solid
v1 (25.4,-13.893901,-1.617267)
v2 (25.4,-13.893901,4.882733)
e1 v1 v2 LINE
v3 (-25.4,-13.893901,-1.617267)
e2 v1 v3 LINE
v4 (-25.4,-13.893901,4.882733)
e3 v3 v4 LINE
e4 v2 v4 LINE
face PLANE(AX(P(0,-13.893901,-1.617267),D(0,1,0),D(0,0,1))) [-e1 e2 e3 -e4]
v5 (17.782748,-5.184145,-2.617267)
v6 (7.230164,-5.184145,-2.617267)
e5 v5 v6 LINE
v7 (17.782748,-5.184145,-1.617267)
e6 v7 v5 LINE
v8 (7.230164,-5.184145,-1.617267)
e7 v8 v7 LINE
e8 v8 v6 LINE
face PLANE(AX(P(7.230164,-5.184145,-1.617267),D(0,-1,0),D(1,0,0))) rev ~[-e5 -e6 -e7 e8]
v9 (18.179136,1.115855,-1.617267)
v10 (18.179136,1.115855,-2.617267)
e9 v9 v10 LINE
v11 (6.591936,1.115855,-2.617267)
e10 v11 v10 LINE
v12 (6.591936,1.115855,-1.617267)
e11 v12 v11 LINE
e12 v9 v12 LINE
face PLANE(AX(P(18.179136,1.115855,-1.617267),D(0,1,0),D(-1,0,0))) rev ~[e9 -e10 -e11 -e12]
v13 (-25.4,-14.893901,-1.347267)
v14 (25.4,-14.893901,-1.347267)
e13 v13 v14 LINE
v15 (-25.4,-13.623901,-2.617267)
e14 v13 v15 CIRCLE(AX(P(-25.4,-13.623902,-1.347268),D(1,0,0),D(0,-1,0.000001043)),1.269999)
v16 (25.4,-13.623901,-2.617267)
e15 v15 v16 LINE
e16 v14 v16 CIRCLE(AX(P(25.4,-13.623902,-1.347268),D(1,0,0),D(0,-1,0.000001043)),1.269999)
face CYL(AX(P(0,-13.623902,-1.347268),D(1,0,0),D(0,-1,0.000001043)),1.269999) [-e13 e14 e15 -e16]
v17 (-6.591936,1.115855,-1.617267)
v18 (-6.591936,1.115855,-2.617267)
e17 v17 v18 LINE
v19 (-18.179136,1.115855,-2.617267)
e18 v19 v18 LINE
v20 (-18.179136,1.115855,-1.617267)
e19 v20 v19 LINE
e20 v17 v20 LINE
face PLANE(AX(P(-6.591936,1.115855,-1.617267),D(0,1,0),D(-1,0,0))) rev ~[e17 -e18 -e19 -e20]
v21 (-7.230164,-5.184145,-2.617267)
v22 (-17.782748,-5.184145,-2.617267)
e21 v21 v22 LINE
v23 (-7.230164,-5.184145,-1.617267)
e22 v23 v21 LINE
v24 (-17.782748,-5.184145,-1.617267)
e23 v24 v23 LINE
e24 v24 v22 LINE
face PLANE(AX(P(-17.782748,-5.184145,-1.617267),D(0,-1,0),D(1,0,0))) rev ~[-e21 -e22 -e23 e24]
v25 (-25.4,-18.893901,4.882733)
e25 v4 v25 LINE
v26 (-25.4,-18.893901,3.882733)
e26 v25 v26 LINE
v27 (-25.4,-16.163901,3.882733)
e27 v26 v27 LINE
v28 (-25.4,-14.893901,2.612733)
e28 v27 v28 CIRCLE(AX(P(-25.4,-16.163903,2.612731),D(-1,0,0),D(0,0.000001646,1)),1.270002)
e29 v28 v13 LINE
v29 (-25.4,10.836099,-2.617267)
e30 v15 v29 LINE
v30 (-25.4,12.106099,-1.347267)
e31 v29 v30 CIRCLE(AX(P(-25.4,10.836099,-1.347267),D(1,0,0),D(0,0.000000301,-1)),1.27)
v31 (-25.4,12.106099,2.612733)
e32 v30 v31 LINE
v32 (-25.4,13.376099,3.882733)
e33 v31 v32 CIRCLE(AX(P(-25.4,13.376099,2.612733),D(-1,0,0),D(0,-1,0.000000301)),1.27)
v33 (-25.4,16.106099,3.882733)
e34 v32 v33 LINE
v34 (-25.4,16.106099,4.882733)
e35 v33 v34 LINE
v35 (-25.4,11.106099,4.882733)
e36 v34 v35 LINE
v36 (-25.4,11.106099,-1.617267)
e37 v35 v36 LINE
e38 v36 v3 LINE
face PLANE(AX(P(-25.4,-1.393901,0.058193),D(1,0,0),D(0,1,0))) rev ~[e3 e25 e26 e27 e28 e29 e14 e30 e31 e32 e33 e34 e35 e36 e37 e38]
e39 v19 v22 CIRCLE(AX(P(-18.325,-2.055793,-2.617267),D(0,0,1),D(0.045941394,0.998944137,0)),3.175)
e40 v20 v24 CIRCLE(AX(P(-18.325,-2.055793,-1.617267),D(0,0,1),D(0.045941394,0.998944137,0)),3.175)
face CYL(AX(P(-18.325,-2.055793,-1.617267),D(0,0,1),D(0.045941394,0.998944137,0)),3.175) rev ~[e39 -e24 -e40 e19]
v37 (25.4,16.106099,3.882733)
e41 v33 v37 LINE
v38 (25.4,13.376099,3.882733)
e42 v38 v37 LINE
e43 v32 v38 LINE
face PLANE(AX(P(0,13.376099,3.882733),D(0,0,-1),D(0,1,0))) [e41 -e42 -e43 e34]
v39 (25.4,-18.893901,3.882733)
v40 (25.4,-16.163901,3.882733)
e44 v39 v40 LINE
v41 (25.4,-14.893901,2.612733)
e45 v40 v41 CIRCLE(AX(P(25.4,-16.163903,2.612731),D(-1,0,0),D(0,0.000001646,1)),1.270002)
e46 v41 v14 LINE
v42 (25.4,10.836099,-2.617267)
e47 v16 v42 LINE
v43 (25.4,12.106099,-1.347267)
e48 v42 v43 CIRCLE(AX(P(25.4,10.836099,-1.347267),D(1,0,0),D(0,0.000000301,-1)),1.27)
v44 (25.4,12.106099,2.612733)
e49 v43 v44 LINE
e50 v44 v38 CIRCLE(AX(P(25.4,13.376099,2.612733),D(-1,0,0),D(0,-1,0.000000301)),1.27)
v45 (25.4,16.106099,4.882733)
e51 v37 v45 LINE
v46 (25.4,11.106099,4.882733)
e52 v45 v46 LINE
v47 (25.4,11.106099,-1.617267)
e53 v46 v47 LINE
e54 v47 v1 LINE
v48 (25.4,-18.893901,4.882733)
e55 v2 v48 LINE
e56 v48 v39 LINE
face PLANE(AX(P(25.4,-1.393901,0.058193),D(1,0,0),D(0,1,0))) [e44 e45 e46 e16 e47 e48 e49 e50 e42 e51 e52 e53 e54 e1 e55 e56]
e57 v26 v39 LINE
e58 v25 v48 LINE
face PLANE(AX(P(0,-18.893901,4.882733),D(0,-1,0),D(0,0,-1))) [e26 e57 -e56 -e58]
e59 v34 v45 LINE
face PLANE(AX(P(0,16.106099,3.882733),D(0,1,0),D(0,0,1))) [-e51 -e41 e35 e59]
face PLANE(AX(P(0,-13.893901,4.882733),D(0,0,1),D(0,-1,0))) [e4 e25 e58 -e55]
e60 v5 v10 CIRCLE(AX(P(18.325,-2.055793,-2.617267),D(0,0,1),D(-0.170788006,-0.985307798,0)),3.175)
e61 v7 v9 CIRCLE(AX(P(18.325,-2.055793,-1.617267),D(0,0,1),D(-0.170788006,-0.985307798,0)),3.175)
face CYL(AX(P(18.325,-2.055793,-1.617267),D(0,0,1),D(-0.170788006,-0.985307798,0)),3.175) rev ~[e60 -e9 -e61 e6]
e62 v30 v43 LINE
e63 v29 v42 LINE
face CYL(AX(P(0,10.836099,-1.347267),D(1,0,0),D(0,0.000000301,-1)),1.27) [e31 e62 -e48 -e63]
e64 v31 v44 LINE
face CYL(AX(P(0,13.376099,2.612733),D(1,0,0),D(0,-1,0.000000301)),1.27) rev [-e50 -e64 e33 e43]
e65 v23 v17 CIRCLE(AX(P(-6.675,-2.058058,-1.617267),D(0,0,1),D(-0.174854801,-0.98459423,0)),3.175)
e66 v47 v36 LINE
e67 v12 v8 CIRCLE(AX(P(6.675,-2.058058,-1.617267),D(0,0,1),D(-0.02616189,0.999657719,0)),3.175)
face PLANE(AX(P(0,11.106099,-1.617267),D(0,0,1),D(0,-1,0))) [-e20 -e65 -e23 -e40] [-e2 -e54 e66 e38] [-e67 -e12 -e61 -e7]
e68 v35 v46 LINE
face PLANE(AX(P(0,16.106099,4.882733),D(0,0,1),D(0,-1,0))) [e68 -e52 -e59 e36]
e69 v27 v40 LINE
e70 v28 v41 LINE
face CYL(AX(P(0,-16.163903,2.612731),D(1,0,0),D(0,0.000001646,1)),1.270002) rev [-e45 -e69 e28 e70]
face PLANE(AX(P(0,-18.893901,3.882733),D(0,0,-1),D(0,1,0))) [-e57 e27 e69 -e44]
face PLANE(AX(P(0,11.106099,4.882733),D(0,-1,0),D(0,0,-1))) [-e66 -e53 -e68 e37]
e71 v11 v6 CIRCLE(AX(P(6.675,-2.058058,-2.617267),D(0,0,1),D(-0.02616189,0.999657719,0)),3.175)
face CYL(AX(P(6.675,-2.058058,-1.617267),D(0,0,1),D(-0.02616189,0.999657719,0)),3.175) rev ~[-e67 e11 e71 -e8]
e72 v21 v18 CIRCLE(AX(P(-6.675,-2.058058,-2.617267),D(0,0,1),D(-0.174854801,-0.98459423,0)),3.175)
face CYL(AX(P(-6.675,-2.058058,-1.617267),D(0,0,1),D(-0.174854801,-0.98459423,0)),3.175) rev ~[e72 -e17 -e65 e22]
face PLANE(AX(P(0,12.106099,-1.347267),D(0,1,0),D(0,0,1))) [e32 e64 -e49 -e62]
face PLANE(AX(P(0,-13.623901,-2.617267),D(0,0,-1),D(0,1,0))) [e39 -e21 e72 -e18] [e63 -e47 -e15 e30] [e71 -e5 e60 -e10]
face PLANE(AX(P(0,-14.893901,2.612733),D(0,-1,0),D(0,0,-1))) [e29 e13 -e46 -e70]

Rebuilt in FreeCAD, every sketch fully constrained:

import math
import FreeCAD as App
import Part
import Sketcher
from FreeCAD import Vector
Q = App.Units.Quantity

doc = App.newDocument("Part")
body = doc.addObject("PartDesign::Body", "Body")

# Sketch on YZ plane
sketch1 = body.newObject("Sketcher::SketchObject", "Sketch")
sketch1.AttachmentSupport = (doc.getObject("YZ_Plane"), [""])
sketch1.MapMode = "FlatFace"
sketch1.addGeometry(Part.LineSegment(Vector(-13.9, 4.9, 0), Vector(-18.9, 4.9, 0)), False)
sketch1.addGeometry(Part.LineSegment(Vector(-18.9, 4.9, 0), Vector(-18.9, 3.9, 0)), False)
sketch1.addGeometry(Part.LineSegment(Vector(-18.9, 3.9, 0), Vector(-16.2, 3.9, 0)), False)
sketch1.addGeometry(Part.ArcOfCircle(Part.Circle(Vector(-16.2, 2.6, 0), Vector(0, 0, 1), 1.3), math.radians(0), math.radians(90)), False)
sketch1.addGeometry(Part.LineSegment(Vector(-14.9, 2.6, 0), Vector(-14.9, -1.3, 0)), False)
sketch1.addGeometry(Part.ArcOfCircle(Part.Circle(Vector(-13.6, -1.3, 0), Vector(0, 0, 1), 1.3), math.radians(180), math.radians(270)), False)
sketch1.addGeometry(Part.LineSegment(Vector(-13.6, -2.6, 0), Vector(10.8, -2.6, 0)), False)
sketch1.addGeometry(Part.ArcOfCircle(Part.Circle(Vector(10.8, -1.3, 0), Vector(0, 0, 1), 1.3), math.radians(-90), math.radians(0)), False)
sketch1.addGeometry(Part.LineSegment(Vector(12.1, -1.3, 0), Vector(12.1, 2.6, 0)), False)
sketch1.addGeometry(Part.ArcOfCircle(Part.Circle(Vector(13.4, 2.6, 0), Vector(0, 0, 1), 1.3), math.radians(90), math.radians(180)), False)
sketch1.addGeometry(Part.LineSegment(Vector(13.4, 3.9, 0), Vector(16.1, 3.9, 0)), False)
sketch1.addGeometry(Part.LineSegment(Vector(16.1, 3.9, 0), Vector(16.1, 4.9, 0)), False)
sketch1.addGeometry(Part.LineSegment(Vector(16.1, 4.9, 0), Vector(11.1, 4.9, 0)), False)
sketch1.addGeometry(Part.LineSegment(Vector(11.1, 4.9, 0), Vector(11.1, -1.6, 0)), False)
sketch1.addGeometry(Part.LineSegment(Vector(11.1, -1.6, 0), Vector(-13.9, -1.6, 0)), False)
sketch1.addGeometry(Part.LineSegment(Vector(-13.9, -1.6, 0), Vector(-13.9, 4.9, 0)), False)
sketch1.addConstraint(Sketcher.Constraint("Coincident", 0, 2, 1, 1))
sketch1.addConstraint(Sketcher.Constraint("Coincident", 1, 2, 2, 1))
sketch1.addConstraint(Sketcher.Constraint("Tangent", 2, 2, 3, 2))
sketch1.addConstraint(Sketcher.Constraint("Tangent", 3, 1, 4, 1))
sketch1.addConstraint(Sketcher.Constraint("Tangent", 4, 2, 5, 1))
sketch1.addConstraint(Sketcher.Constraint("Tangent", 5, 2, 6, 1))
sketch1.addConstraint(Sketcher.Constraint("Tangent", 6, 2, 7, 1))
sketch1.addConstraint(Sketcher.Constraint("Tangent", 7, 2, 8, 1))
sketch1.addConstraint(Sketcher.Constraint("Tangent", 8, 2, 9, 2))
sketch1.addConstraint(Sketcher.Constraint("Tangent", 9, 1, 10, 1))
sketch1.addConstraint(Sketcher.Constraint("Coincident", 10, 2, 11, 1))
sketch1.addConstraint(Sketcher.Constraint("Coincident", 11, 2, 12, 1))
sketch1.addConstraint(Sketcher.Constraint("Coincident", 12, 2, 13, 1))
sketch1.addConstraint(Sketcher.Constraint("Coincident", 13, 2, 14, 1))
sketch1.addConstraint(Sketcher.Constraint("Coincident", 14, 2, 15, 1))
sketch1.addConstraint(Sketcher.Constraint("Coincident", 15, 2, 0, 1))
sketch1.addConstraint(Sketcher.Constraint("Horizontal", 0))
sketch1.addConstraint(Sketcher.Constraint("Vertical", 1))
sketch1.addConstraint(Sketcher.Constraint("Horizontal", 2))
sketch1.addConstraint(Sketcher.Constraint("Vertical", 4))
sketch1.addConstraint(Sketcher.Constraint("Horizontal", 6))
sketch1.addConstraint(Sketcher.Constraint("Vertical", 8))
sketch1.addConstraint(Sketcher.Constraint("Horizontal", 10))
sketch1.addConstraint(Sketcher.Constraint("Vertical", 11))
sketch1.addConstraint(Sketcher.Constraint("Horizontal", 12))
sketch1.addConstraint(Sketcher.Constraint("Vertical", 13))
sketch1.addConstraint(Sketcher.Constraint("Horizontal", 14))
sketch1.addConstraint(Sketcher.Constraint("Vertical", 15))
sketch1.addConstraint(Sketcher.Constraint("Equal", 5, 7))
sketch1.addConstraint(Sketcher.Constraint("Equal", 7, 9))
sketch1.addConstraint(Sketcher.Constraint("Horizontal", 3, 3, 9, 3))
sketch1.addConstraint(Sketcher.Constraint("Horizontal", 2, 2, 9, 1))
sketch1.addConstraint(Sketcher.Constraint("Horizontal", 0, 2, 11, 2))
sketch1.addConstraint(Sketcher.Constraint("Equal", 2, 10))
sketch1.addConstraint(Sketcher.Constraint("Equal", 0, 12))
sketch1.addConstraint(Sketcher.Constraint("Radius", 3, Q("0.0500001 in")))
sketch1.addConstraint(Sketcher.Constraint("DistanceX", 0, 2, 0, 1, Q("5 mm")))
sketch1.addConstraint(Sketcher.Constraint("DistanceX", 2, 1, 2, 2, Q("2.73 mm")))
sketch1.addConstraint(Sketcher.Constraint("DistanceX", 6, 1, 6, 2, Q("24.46 mm")))
sketch1.addConstraint(Sketcher.Constraint("DistanceY", 1, 2, 1, 1, Q("1 mm")))
sketch1.addConstraint(Sketcher.Constraint("DistanceY", 4, 2, 4, 1, Q("3.96 mm")))
sketch1.addConstraint(Sketcher.Constraint("DistanceY", 13, 2, 13, 1, Q("6.5 mm")))
sketch1.addConstraint(Sketcher.Constraint("DistanceX", -1, 1, 7, 3, Q("10.836099 mm")))
sketch1.addConstraint(Sketcher.Constraint("DistanceY", -1, 1, 3, 3, Q("2.612731 mm")))
pad1 = body.newObject("PartDesign::Pad", "Pad")
pad1.Profile = sketch1
pad1.Length = Q("2 in")
pad1.Midplane = True

# Sketch on XY plane
sketch2 = body.newObject("Sketcher::SketchObject", "Sketch001")
sketch2.AttachmentSupport = (doc.getObject("XY_Plane"), [""])
sketch2.MapMode = "FlatFace"
sketch2.AttachmentOffset = App.Placement(Vector(0, 0, -1.617267), App.Rotation())
sketch2.addGeometry(Part.LineSegment(Vector(-6.6, 1.1, 0), Vector(-18.2, 1.1, 0)), False)
sketch2.addGeometry(Part.ArcOfCircle(Part.Circle(Vector(-18.3, -2.1, 0), Vector(0, 0, 1), 3.2), math.radians(87), math.radians(280)), False)
sketch2.addGeometry(Part.LineSegment(Vector(-17.8, -5.2, 0), Vector(-7.2, -5.2, 0)), False)
sketch2.addGeometry(Part.ArcOfCircle(Part.Circle(Vector(-6.7, -2.1, 0), Vector(0, 0, 1), 3.2), math.radians(-100), math.radians(89)), False)
sketch2.addGeometry(Part.ArcOfCircle(Part.Circle(Vector(18.3, -2.1, 0), Vector(0, 0, 1), 3.2), math.radians(-100), math.radians(93)), False)
sketch2.addGeometry(Part.LineSegment(Vector(18.2, 1.1, 0), Vector(6.6, 1.1, 0)), False)
sketch2.addGeometry(Part.ArcOfCircle(Part.Circle(Vector(6.7, -2.1, 0), Vector(0, 0, 1), 3.2), math.radians(91), math.radians(280)), False)
sketch2.addGeometry(Part.LineSegment(Vector(7.2, -5.2, 0), Vector(17.8, -5.2, 0)), False)
sketch2.addConstraint(Sketcher.Constraint("Coincident", 0, 2, 1, 1))
sketch2.addConstraint(Sketcher.Constraint("Coincident", 1, 2, 2, 1))
sketch2.addConstraint(Sketcher.Constraint("Coincident", 2, 2, 3, 1))
sketch2.addConstraint(Sketcher.Constraint("Coincident", 3, 2, 0, 1))
sketch2.addConstraint(Sketcher.Constraint("Coincident", 4, 2, 5, 1))
sketch2.addConstraint(Sketcher.Constraint("Coincident", 5, 2, 6, 1))
sketch2.addConstraint(Sketcher.Constraint("Coincident", 6, 2, 7, 1))
sketch2.addConstraint(Sketcher.Constraint("Coincident", 7, 2, 4, 1))
sketch2.addConstraint(Sketcher.Constraint("Horizontal", 0))
sketch2.addConstraint(Sketcher.Constraint("Horizontal", 2))
sketch2.addConstraint(Sketcher.Constraint("Horizontal", 5))
sketch2.addConstraint(Sketcher.Constraint("Horizontal", 7))
sketch2.addConstraint(Sketcher.Constraint("Equal", 1, 3))
sketch2.addConstraint(Sketcher.Constraint("Equal", 3, 4))
sketch2.addConstraint(Sketcher.Constraint("Equal", 4, 6))
sketch2.addConstraint(Sketcher.Constraint("Symmetric", 1, 3, 4, 3, -2))
sketch2.addConstraint(Sketcher.Constraint("Symmetric", 3, 3, 6, 3, -2))
sketch2.addConstraint(Sketcher.Constraint("Horizontal", 3, 2, 4, 2))
sketch2.addConstraint(Sketcher.Constraint("Horizontal", 2, 2, 6, 2))
sketch2.addConstraint(Sketcher.Constraint("Radius", 1, Q("0.125 in")))
sketch2.addConstraint(Sketcher.Constraint("DistanceX", 0, 2, 0, 1, Q("11.5872 mm")))
sketch2.addConstraint(Sketcher.Constraint("DistanceY", 1, 2, -1, 1, Q("0.2041002 in")))
sketch2.addConstraint(Sketcher.Constraint("DistanceX", 1, 3, -1, 1, Q("18.325 mm")))
sketch2.addConstraint(Sketcher.Constraint("DistanceX", 3, 3, -1, 1, Q("6.675 mm")))
sketch2.addConstraint(Sketcher.Constraint("DistanceY", 1, 2, 0, 2, Q("6.3 mm")))
sketch2.addConstraint(Sketcher.Constraint("DistanceX", 2, 2, 4, 2, Q("25.4093 mm")))
pocket1 = body.newObject("PartDesign::Pocket", "Pocket")
pocket1.Profile = sketch2
pocket1.Length = Q("1 in")

doc.recompute()
